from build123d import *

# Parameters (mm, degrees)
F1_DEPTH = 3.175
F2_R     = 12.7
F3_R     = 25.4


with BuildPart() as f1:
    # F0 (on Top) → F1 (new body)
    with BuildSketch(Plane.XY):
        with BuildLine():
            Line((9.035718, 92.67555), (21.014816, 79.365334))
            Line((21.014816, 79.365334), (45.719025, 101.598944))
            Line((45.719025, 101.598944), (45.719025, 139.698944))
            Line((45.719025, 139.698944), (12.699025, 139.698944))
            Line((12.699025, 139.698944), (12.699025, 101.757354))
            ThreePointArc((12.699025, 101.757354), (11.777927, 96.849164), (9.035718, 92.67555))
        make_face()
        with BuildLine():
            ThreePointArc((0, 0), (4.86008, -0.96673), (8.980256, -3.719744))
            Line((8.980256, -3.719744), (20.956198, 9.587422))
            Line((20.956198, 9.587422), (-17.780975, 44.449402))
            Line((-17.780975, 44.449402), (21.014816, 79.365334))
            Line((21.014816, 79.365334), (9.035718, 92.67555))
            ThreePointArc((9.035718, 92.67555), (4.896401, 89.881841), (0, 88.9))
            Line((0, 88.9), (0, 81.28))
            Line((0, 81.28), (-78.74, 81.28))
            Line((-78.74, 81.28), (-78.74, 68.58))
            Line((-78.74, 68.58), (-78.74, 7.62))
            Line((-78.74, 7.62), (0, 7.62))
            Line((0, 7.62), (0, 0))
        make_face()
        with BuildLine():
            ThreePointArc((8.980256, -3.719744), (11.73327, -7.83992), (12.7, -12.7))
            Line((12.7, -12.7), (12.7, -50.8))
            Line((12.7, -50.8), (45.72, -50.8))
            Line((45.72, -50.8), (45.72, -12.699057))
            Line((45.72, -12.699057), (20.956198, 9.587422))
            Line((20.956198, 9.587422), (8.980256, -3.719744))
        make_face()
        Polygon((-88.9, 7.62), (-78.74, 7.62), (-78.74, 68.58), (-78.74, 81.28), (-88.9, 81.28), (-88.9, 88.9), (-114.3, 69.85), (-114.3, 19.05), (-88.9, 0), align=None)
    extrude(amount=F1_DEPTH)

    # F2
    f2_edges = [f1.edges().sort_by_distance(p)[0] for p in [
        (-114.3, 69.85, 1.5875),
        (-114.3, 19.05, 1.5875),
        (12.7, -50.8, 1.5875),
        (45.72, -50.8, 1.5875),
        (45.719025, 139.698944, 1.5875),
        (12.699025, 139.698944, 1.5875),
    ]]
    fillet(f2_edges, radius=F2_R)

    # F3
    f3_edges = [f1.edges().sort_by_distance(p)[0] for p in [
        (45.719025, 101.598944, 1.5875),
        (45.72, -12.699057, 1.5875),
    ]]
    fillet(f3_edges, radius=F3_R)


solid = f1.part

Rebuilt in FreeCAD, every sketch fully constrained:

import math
import FreeCAD as App
import Part
import Sketcher

V = App.Vector
Q = App.Units.Quantity


def edges_at(feature, points):
    """Names of the edges that pass closest to the given points."""
    edges = feature.Shape.Edges
    near = lambda p: min(range(len(edges)), key=lambda i: edges[i].distToShape(Part.Vertex(*p))[0])
    return sorted({f"Edge{near(p) + 1}" for p in points})

doc = App.newDocument("Part")
body = doc.addObject("PartDesign::Body", "Body")

# Sketch on XY plane
sketch1 = body.newObject("Sketcher::SketchObject", "Sketch")
sketch1.AttachmentSupport = (doc.getObject("XY_Plane"), [""])
sketch1.MapMode = "FlatFace"
sketch1.addGeometry([
    Part.LineSegment(V(-18, 44, 0), V(21, 79, 0)),  # 0
    Part.LineSegment(V(21, 79, 0), V(46, 102, 0)),  # 1
    Part.LineSegment(V(46, 102, 0), V(46, 140, 0)),  # 2
    Part.LineSegment(V(46, 140, 0), V(13, 140, 0)),  # 3
    Part.LineSegment(V(13, 140, 0), V(13, 102, 0)),  # 4
    Part.ArcOfCircle(Part.Circle(V(0, 102, 0), V(0, 0, 1), 13), math.radians(-45), math.radians(1)),  # 5
    Part.ArcOfCircle(Part.Circle(V(0, 102, 0), V(0, 0, 1), 13), math.radians(-90), math.radians(-45)),  # 6
    Part.LineSegment(V(0, 89, 0), V(0, 81, 0)),  # 7
    Part.LineSegment(V(0, 81, 0), V(-89, 81, 0)),  # 8
    Part.LineSegment(V(-89, 81, 0), V(-89, 89, 0)),  # 9
    Part.LineSegment(V(-89, 89, 0), V(-114, 70, 0)),  # 10
    Part.LineSegment(V(-114, 70, 0), V(-114, 19, 0)),  # 11
    Part.LineSegment(V(-114, 19, 0), V(-89, 0, 0)),  # 12
    Part.LineSegment(V(-89, 0, 0), V(-89, 8, 0)),  # 13
    Part.LineSegment(V(-89, 8, 0), V(0, 8, 0)),  # 14
    Part.LineSegment(V(0, 8, 0), V(0, 0, 0)),  # 15
    Part.ArcOfCircle(Part.Circle(V(0, -13, 0), V(0, 0, 1), 13), math.radians(45), math.radians(90)),  # 16
    Part.ArcOfCircle(Part.Circle(V(0, -13, 0), V(0, 0, 1), 13), math.radians(0), math.radians(45)),  # 17
    Part.LineSegment(V(13, -13, 0), V(13, -51, 0)),  # 18
    Part.LineSegment(V(13, -51, 0), V(46, -51, 0)),  # 19
    Part.LineSegment(V(46, -51, 0), V(46, -13, 0)),  # 20
    Part.LineSegment(V(46, -13, 0), V(21, 10, 0)),  # 21
    Part.LineSegment(V(21, 10, 0), V(-18, 44, 0)),  # 22
], False)
sketch1.addConstraint([
    Sketcher.Constraint("Coincident", 0, 2, 1, 1),
    Sketcher.Constraint("Coincident", 1, 2, 2, 1),
    Sketcher.Constraint("Coincident", 2, 2, 3, 1),
    Sketcher.Constraint("Coincident", 3, 2, 4, 1),
    Sketcher.Constraint("Coincident", 4, 2, 5, 2),
    Sketcher.Constraint("Tangent", 5, 1, 6, 2),
    Sketcher.Constraint("Coincident", 6, 1, 7, 1),
    Sketcher.Constraint("Coincident", 7, 2, 8, 1),
    Sketcher.Constraint("Coincident", 8, 2, 9, 1),
    Sketcher.Constraint("Coincident", 9, 2, 10, 1),
    Sketcher.Constraint("Coincident", 10, 2, 11, 1),
    Sketcher.Constraint("Coincident", 11, 2, 12, 1),
    Sketcher.Constraint("Coincident", 12, 2, 13, 1),
    Sketcher.Constraint("Coincident", 13, 2, 14, 1),
    Sketcher.Constraint("Coincident", 14, 2, 15, 1),
    Sketcher.Constraint("Coincident", 15, 2, 16, 2),
    Sketcher.Constraint("Tangent", 16, 1, 17, 2),
    Sketcher.Constraint("Tangent", 17, 1, 18, 1),
    Sketcher.Constraint("Coincident", 18, 2, 19, 1),
    Sketcher.Constraint("Coincident", 19, 2, 20, 1),
    Sketcher.Constraint("Coincident", 20, 2, 21, 1),
    Sketcher.Constraint("Coincident", 21, 2, 22, 1),
    Sketcher.Constraint("Coincident", 22, 2, 0, 1),
    Sketcher.Constraint("Vertical", 2),
    Sketcher.Constraint("Horizontal", 3),
    Sketcher.Constraint("Vertical", 4),
    Sketcher.Constraint("Vertical", 7),
    Sketcher.Constraint("Horizontal", 8),
    Sketcher.Constraint("Vertical", 9),
    Sketcher.Constraint("Vertical", 11),
    Sketcher.Constraint("Vertical", 13),
    Sketcher.Constraint("Horizontal", 14),
    Sketcher.Constraint("Vertical", 15),
    Sketcher.Constraint("Vertical", 18),
    Sketcher.Constraint("Horizontal", 19),
    Sketcher.Constraint("Vertical", 20),
    Sketcher.Constraint("Coincident", 15, 2, -1, 1),
    Sketcher.Constraint("Equal", 5, 16),
    Sketcher.Constraint("Equal", 16, 17),
    Sketcher.Constraint("PointOnObject", 6, 3, -2),
    Sketcher.Constraint("PointOnObject", 16, 3, -2),
    Sketcher.Constraint("PointOnObject", 6, 1, -2),
    Sketcher.Constraint("PointOnObject", 12, 2, -1),
    Sketcher.Constraint("Parallel", 0, 1),
    Sketcher.Constraint("Parallel", 21, 22),
    Sketcher.Constraint("Horizontal", 6, 1, 9, 2),
    Sketcher.Constraint("Vertical", 5, 3, 16, 3),
    Sketcher.Constraint("Vertical", 9, 2, 12, 2),
    Sketcher.Constraint("Equal", 3, 19),
    Sketcher.Constraint("Equal", 9, 13),
    Sketcher.Constraint("Equal", 2, 18),
    Sketcher.Constraint("Equal", 10, 12),
    Sketcher.Constraint("Radius", 5, Q("0.4999999 in")),
    Sketcher.Constraint("DistanceY", 11, 2, 11, 1, Q("2 in")),
    Sketcher.Constraint("DistanceX", 3, 2, 3, 1, Q("1.3 in")),
    Sketcher.Constraint("DistanceX", 8, 2, 8, 1, Q("3.5 in")),
    Sketcher.Constraint("DistanceY", 2, 1, 2, 2, Q("1.5 in")),
    Sketcher.Constraint("DistanceY", 7, 2, 7, 1, Q("0.3 in")),
    Sketcher.Constraint("DistanceY", -1, 1, 5, 3, Q("3.9999999 in")),
    Sketcher.Constraint("DistanceX", 10, 2, 8, 2, Q("1 in")),
    Sketcher.Constraint("DistanceY", 4, 2, 4, 1, Q("37.94159 mm")),
    Sketcher.Constraint("DistanceX", -1, 1, 21, 2, Q("20.956198 mm")),
    Sketcher.Constraint("DistanceX", 5, 1, 0, 2, Q("11.979098 mm")),
    Sketcher.Constraint("DistanceY", 22, 2, 7, 2, Q("36.830598 mm")),
    Sketcher.Constraint("Distance", 0, Q("52.194211 mm")),
    Sketcher.Constraint("Distance", 22, Q("52.114549 mm")),
    Sketcher.Constraint("DistanceY", 20, 1, 20, 2, Q("38.100943 mm")),
    Sketcher.Constraint("DistanceY", -1, 1, 5, 1, Q("92.67555 mm")),
    Sketcher.Constraint("DistanceX", 16, 1, 0, 2, Q("12.03456 mm")),
])
pad1 = body.newObject("PartDesign::Pad", "Pad")
pad1.Profile = sketch1
pad1.Length = Q("0.125 in")
doc.recompute()

fillet = body.newObject("PartDesign::Fillet", "Fillet")
fillet.Base = (pad1, edges_at(pad1, [
    (-114.3, 69.85, 1.587),
    (-114.3, 19.05, 1.587),
    (12.7, -50.8, 1.587),
    (45.72, -50.8, 1.587),
    (45.719, 139.699, 1.587),
    (12.699, 139.699, 1.587),
]))
fillet.Radius = Q("0.5 in")
doc.recompute()

fillet2 = body.newObject("PartDesign::Fillet", "Fillet001")
fillet2.Base = (fillet, edges_at(fillet, [(45.719, 101.599, 1.587), (45.72, -12.699, 1.587)]))
fillet2.Radius = Q("1 in")

doc.recompute()
